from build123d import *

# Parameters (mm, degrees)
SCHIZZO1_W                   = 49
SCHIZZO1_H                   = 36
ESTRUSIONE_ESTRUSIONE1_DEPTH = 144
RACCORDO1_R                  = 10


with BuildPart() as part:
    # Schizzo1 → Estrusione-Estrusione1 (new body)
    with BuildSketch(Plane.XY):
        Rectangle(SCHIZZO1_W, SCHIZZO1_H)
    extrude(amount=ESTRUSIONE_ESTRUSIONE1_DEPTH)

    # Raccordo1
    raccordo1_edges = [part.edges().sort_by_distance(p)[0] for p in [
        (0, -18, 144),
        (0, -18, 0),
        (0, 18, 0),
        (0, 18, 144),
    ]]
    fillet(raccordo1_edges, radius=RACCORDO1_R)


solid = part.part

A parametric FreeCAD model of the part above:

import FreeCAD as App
import Part
import Sketcher

V = App.Vector
Q = App.Units.Quantity


def edges_at(feature, points):
    """Names of the edges that pass closest to the given points."""
    edges = feature.Shape.Edges
    near = lambda p: min(range(len(edges)), key=lambda i: edges[i].distToShape(Part.Vertex(*p))[0])
    return sorted({f"Edge{near(p) + 1}" for p in points})

doc = App.newDocument("Part")
body = doc.addObject("PartDesign::Body", "Body")

sketch1 = body.newObject("Sketcher::SketchObject", "Sketch")
sketch1.AttachmentSupport = (doc.getObject("XY_Plane"), [""])
sketch1.MapMode = "FlatFace"
sketch1.addGeometry([
    Part.LineSegment(V(-24, 18, 0), V(-24, -18, 0)),
    Part.LineSegment(V(-24, -18, 0), V(24, -18, 0)),
    Part.LineSegment(V(24, -18, 0), V(24, 18, 0)),
    Part.LineSegment(V(24, 18, 0), V(-24, 18, 0)),
], False)
sketch1.addConstraint([
    Sketcher.Constraint("Coincident", 0, 2, 1, 1),
    Sketcher.Constraint("Coincident", 1, 2, 2, 1),
    Sketcher.Constraint("Coincident", 2, 2, 3, 1),
    Sketcher.Constraint("Coincident", 3, 2, 0, 1),
    Sketcher.Constraint("Vertical", 0),
    Sketcher.Constraint("Horizontal", 1),
    Sketcher.Constraint("Vertical", 2),
    Sketcher.Constraint("Horizontal", 3),
    Sketcher.Constraint("Symmetric", 0, 2, 2, 2, -1, 1),
    Sketcher.Constraint("DistanceX", 1, 1, 1, 2, Q("49 mm")),
    Sketcher.Constraint("DistanceY", 0, 2, 0, 1, Q("36 mm")),
])
pad1 = body.newObject("PartDesign::Pad", "Pad")
pad1.Profile = sketch1
pad1.Length = 144
doc.recompute()

fillet = body.newObject("PartDesign::Fillet", "Fillet")
fillet.Base = (pad1, edges_at(pad1, [
    (0, -18, 144),
    (0, -18, 0),
    (0, 18, 0),
    (0, 18, 144),
]))
fillet.Radius = 10

doc.recompute()
